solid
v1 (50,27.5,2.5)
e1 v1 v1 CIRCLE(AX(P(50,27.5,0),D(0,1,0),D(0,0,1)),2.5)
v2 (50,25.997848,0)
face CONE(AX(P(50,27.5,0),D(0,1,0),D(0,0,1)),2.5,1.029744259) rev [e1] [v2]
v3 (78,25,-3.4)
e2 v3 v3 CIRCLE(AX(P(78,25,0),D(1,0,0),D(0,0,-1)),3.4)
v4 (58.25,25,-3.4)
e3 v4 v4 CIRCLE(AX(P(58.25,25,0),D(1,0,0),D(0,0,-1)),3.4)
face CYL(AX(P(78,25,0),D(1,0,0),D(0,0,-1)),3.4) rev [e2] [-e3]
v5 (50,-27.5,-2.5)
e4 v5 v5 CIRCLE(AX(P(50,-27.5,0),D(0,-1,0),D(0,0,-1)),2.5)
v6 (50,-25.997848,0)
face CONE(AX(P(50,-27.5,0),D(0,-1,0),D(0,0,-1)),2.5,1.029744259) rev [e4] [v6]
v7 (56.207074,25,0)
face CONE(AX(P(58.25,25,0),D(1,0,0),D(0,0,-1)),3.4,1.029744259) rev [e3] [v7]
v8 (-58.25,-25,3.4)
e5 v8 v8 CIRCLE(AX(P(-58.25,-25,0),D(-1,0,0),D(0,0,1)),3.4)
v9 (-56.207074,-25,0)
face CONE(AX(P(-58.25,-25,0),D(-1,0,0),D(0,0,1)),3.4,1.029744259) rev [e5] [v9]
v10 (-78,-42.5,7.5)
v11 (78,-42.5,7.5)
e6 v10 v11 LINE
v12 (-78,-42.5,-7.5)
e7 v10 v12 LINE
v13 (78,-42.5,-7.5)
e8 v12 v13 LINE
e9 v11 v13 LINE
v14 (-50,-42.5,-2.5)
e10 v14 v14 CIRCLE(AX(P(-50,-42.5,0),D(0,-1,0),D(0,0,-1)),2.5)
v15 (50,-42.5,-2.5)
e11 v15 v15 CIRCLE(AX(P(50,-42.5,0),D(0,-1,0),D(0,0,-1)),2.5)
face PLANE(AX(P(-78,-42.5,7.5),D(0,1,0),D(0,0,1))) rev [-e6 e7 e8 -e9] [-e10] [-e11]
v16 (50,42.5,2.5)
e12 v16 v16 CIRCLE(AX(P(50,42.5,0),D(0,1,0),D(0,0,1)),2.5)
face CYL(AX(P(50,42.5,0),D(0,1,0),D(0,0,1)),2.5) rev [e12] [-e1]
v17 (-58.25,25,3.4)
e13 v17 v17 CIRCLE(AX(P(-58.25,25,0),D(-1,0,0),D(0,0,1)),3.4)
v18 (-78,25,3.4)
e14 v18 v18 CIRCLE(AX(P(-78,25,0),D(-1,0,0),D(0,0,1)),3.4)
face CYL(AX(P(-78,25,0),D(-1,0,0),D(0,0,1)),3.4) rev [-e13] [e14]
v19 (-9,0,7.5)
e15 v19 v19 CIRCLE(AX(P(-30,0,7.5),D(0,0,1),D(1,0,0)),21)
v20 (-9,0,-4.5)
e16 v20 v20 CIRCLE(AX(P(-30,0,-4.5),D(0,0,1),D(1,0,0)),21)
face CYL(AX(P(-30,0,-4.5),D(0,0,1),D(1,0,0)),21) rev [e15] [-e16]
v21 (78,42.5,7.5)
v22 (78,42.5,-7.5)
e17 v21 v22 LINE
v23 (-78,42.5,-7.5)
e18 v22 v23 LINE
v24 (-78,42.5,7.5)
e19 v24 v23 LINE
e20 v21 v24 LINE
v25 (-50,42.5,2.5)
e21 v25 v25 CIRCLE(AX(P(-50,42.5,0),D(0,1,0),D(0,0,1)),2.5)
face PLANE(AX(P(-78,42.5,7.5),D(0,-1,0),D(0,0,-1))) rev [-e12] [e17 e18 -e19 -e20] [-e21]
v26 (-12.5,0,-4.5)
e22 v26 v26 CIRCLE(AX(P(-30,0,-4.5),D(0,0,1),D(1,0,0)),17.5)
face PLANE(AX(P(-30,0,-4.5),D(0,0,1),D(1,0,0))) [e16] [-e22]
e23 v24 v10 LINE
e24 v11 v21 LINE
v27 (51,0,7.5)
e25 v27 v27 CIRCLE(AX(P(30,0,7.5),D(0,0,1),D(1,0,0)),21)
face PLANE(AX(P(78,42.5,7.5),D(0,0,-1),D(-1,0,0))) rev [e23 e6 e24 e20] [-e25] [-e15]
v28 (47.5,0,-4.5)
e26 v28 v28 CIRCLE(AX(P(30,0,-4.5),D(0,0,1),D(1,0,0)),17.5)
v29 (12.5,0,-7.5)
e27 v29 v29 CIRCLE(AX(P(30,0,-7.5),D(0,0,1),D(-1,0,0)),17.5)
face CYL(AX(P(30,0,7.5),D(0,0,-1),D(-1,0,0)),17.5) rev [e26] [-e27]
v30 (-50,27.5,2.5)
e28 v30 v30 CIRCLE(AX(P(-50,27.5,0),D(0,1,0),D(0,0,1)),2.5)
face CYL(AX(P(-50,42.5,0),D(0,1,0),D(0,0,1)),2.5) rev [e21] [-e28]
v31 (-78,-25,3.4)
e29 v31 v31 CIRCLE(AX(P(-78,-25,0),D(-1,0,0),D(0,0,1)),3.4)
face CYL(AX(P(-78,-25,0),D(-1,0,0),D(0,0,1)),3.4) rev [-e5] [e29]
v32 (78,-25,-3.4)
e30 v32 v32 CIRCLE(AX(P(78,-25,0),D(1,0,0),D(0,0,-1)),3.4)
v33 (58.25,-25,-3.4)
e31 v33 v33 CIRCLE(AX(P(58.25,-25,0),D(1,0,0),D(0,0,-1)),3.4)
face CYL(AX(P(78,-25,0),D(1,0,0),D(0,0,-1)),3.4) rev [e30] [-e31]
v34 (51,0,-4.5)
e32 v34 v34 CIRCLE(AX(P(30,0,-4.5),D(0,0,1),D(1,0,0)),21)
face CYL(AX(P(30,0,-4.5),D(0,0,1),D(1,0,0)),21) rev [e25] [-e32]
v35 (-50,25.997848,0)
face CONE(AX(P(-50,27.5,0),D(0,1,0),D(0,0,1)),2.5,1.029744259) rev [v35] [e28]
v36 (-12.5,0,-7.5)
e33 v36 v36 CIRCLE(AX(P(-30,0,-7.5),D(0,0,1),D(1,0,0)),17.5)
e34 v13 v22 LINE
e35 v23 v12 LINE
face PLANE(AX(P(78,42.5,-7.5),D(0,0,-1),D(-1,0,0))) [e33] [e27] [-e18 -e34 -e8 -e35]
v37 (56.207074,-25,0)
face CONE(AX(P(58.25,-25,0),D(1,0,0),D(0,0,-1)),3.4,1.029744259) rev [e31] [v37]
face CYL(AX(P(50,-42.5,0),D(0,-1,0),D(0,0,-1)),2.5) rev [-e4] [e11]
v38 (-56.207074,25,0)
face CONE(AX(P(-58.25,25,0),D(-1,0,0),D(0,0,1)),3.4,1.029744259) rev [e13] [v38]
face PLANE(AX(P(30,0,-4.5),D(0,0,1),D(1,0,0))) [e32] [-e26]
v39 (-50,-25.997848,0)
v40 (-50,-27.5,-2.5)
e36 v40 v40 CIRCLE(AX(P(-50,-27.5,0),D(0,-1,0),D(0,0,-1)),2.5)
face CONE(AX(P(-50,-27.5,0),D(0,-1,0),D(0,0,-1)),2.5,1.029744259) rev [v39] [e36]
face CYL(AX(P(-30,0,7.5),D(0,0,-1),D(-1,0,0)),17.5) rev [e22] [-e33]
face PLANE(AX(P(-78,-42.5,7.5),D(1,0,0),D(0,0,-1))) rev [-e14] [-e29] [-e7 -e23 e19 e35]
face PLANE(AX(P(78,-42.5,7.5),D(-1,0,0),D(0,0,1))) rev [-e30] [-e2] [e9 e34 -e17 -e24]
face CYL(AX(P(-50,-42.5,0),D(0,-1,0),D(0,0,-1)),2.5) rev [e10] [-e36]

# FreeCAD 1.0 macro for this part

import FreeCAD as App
import Part
import Sketcher

V = App.Vector


def add_polygon(sketch, points):
    """Adds a closed chain of lines whose ends are joined by coincident constraints."""
    first, n = sketch.GeometryCount, len(points)
    for a, b in zip(points, points[1:] + points[:1]):
        sketch.addGeometry(Part.LineSegment(App.Vector(*a, 0), App.Vector(*b, 0)), False)
    for i in range(n):
        sketch.addConstraint(Sketcher.Constraint("Coincident", first + i, 2, first + (i + 1) % n, 1))

doc = App.newDocument("Part")
body = doc.addObject("PartDesign::Body", "Body")

# Sketch on XY plane
sketch1 = body.newObject("Sketcher::SketchObject", "Sketch")
sketch1.AttachmentSupport = (doc.getObject("XY_Plane"), [""])
sketch1.MapMode = "FlatFace"
add_polygon(sketch1, [(-78, 42), (-78, -42), (78, -42), (78, 42)])  # lines 0-3
sketch1.addGeometry(Part.Circle(V(-30, 0, 0), V(0, 0, 1), 18), False)  # 4
sketch1.addGeometry(Part.Circle(V(30, 0, 0), V(0, 0, 1), 18), False)  # 5
sketch1.addConstraint(Sketcher.Constraint("Vertical", 0))
sketch1.addConstraint(Sketcher.Constraint("Horizontal", 1))
sketch1.addConstraint(Sketcher.Constraint("Vertical", 2))
sketch1.addConstraint(Sketcher.Constraint("Horizontal", 3))
sketch1.addConstraint(Sketcher.Constraint("Equal", 4, 5))
sketch1.addConstraint(Sketcher.Constraint("Symmetric", 4, 3, 5, 3, -1, 1))
sketch1.addConstraint(Sketcher.Constraint("Symmetric", 0, 2, 2, 2, -1, 1))
sketch1.addConstraint(Sketcher.Constraint("PointOnObject", 4, 3, -1))
sketch1.addConstraint(Sketcher.Constraint("Diameter", 4, 35.0))
sketch1.addConstraint(Sketcher.Constraint("DistanceX", 1, 1, 1, 2, 156.0))
sketch1.addConstraint(Sketcher.Constraint("DistanceY", 0, 2, 0, 1, 85.0))
sketch1.addConstraint(Sketcher.Constraint("DistanceX", 4, 3, -1, 1, 30.0))
pad1 = body.newObject("PartDesign::Pad", "Pad")
pad1.Profile = sketch1
pad1.Length = 15
pad1.Midplane = True

# Sketch on XY plane
sketch2 = body.newObject("Sketcher::SketchObject", "Sketch001")
sketch2.AttachmentSupport = (doc.getObject("XY_Plane"), [""])
sketch2.MapMode = "FlatFace"
sketch2.AttachmentOffset = App.Placement(V(0, 0, 7.5), App.Rotation())
sketch2.addGeometry(Part.Circle(V(-30, 0, 0), V(0, 0, 1), 21), False)
sketch2.addGeometry(Part.Circle(V(30, 0, 0), V(0, 0, 1), 21), False)
sketch2.addConstraint(Sketcher.Constraint("Equal", 0, 1))
sketch2.addConstraint(Sketcher.Constraint("Symmetric", 0, 3, 1, 3, -1, 1))
sketch2.addConstraint(Sketcher.Constraint("PointOnObject", 0, 3, -1))
sketch2.addConstraint(Sketcher.Constraint("Diameter", 0, 42.0))
sketch2.addConstraint(Sketcher.Constraint("DistanceX", 0, 3, -1, 1, 30.0))
pocket1 = body.newObject("PartDesign::Pocket", "Pocket")
pocket1.Profile = sketch2
pocket1.Length = 12

# Sketch on YZ plane
sketch3 = body.newObject("Sketcher::SketchObject", "Sketch002")
sketch3.AttachmentSupport = (doc.getObject("YZ_Plane"), [""])
sketch3.MapMode = "FlatFace"
sketch3.AttachmentOffset = App.Placement(V(0, 0, -78), App.Rotation())
sketch3.addGeometry(Part.Circle(V(25, 0, 0), V(0, 0, 1), 3.4), False)
sketch3.addGeometry(Part.Circle(V(-25, 0, 0), V(0, 0, 1), 3.4), False)
sketch3.addConstraint(Sketcher.Constraint("Equal", 0, 1))
sketch3.addConstraint(Sketcher.Constraint("Symmetric", 0, 3, 1, 3, -1, 1))
sketch3.addConstraint(Sketcher.Constraint("PointOnObject", 0, 3, -1))
sketch3.addConstraint(Sketcher.Constraint("Diameter", 0, 6.8))
sketch3.addConstraint(Sketcher.Constraint("DistanceX", -1, 1, 0, 3, 25.0))
doc.recompute()
hole = body.newObject("PartDesign::Hole", "Hole")
hole.Profile = sketch3
hole.ThreadType = "None"
hole.Diameter = 6.8
hole.DepthType = "Dimension"
hole.Depth = 19.75
hole.DrillPoint = "Angled"
hole.DrillPointAngle = 118
hole.Reversed = True

# Sketch on YZ plane
sketch4 = body.newObject("Sketcher::SketchObject", "Sketch003")
sketch4.AttachmentSupport = (doc.getObject("YZ_Plane"), [""])
sketch4.MapMode = "FlatFace"
sketch4.AttachmentOffset = App.Placement(V(0, 0, 78), App.Rotation())
sketch4.addGeometry(Part.Circle(V(25, 0, 0), V(0, 0, 1), 3.4), False)
sketch4.addGeometry(Part.Circle(V(-25, 0, 0), V(0, 0, 1), 3.4), False)
sketch4.addConstraint(Sketcher.Constraint("Equal", 0, 1))
sketch4.addConstraint(Sketcher.Constraint("Symmetric", 0, 3, 1, 3, -1, 1))
sketch4.addConstraint(Sketcher.Constraint("PointOnObject", 0, 3, -1))
sketch4.addConstraint(Sketcher.Constraint("Diameter", 0, 6.8))
sketch4.addConstraint(Sketcher.Constraint("DistanceX", -1, 1, 0, 3, 25.0))
doc.recompute()
hole2 = body.newObject("PartDesign::Hole", "Hole001")
hole2.Profile = sketch4
hole2.ThreadType = "None"
hole2.Diameter = 6.8
hole2.DepthType = "Dimension"
hole2.Depth = 19.75
hole2.DrillPoint = "Angled"
hole2.DrillPointAngle = 118

# Sketch on XZ plane
sketch5 = body.newObject("Sketcher::SketchObject", "Sketch004")
sketch5.AttachmentSupport = (doc.getObject("XZ_Plane"), [""])
sketch5.MapMode = "FlatFace"
sketch5.AttachmentOffset = App.Placement(V(0, 0, 42.5), App.Rotation())
sketch5.addGeometry(Part.Circle(V(-50, 0, 0), V(0, 0, 1), 2.5), False)
sketch5.addGeometry(Part.Circle(V(50, 0, 0), V(0, 0, 1), 2.5), False)
sketch5.addConstraint(Sketcher.Constraint("Equal", 0, 1))
sketch5.addConstraint(Sketcher.Constraint("Symmetric", 0, 3, 1, 3, -1, 1))
sketch5.addConstraint(Sketcher.Constraint("PointOnObject", 0, 3, -1))
sketch5.addConstraint(Sketcher.Constraint("Diameter", 0, 5.0))
sketch5.addConstraint(Sketcher.Constraint("DistanceX", 0, 3, -1, 1, 50.0))
doc.recompute()
hole3 = body.newObject("PartDesign::Hole", "Hole002")
hole3.Profile = sketch5
hole3.ThreadType = "None"
hole3.Diameter = 5
hole3.DepthType = "Dimension"
hole3.Depth = 15
hole3.DrillPoint = "Angled"
hole3.DrillPointAngle = 118

# Sketch on XZ plane
sketch6 = body.newObject("Sketcher::SketchObject", "Sketch005")
sketch6.AttachmentSupport = (doc.getObject("XZ_Plane"), [""])
sketch6.MapMode = "FlatFace"
sketch6.AttachmentOffset = App.Placement(V(0, 0, -42.5), App.Rotation())
sketch6.addGeometry(Part.Circle(V(-50, 0, 0), V(0, 0, 1), 2.5), False)
sketch6.addGeometry(Part.Circle(V(50, 0, 0), V(0, 0, 1), 2.5), False)
sketch6.addConstraint(Sketcher.Constraint("Equal", 0, 1))
sketch6.addConstraint(Sketcher.Constraint("Symmetric", 0, 3, 1, 3, -1, 1))
sketch6.addConstraint(Sketcher.Constraint("PointOnObject", 0, 3, -1))
sketch6.addConstraint(Sketcher.Constraint("Diameter", 0, 5.0))
sketch6.addConstraint(Sketcher.Constraint("DistanceX", 0, 3, -1, 1, 50.0))
doc.recompute()
hole4 = body.newObject("PartDesign::Hole", "Hole003")
hole4.Profile = sketch6
hole4.ThreadType = "None"
hole4.Diameter = 5
hole4.DepthType = "Dimension"
hole4.Depth = 15
hole4.DrillPoint = "Angled"
hole4.DrillPointAngle = 118
hole4.Reversed = True

doc.recompute()
